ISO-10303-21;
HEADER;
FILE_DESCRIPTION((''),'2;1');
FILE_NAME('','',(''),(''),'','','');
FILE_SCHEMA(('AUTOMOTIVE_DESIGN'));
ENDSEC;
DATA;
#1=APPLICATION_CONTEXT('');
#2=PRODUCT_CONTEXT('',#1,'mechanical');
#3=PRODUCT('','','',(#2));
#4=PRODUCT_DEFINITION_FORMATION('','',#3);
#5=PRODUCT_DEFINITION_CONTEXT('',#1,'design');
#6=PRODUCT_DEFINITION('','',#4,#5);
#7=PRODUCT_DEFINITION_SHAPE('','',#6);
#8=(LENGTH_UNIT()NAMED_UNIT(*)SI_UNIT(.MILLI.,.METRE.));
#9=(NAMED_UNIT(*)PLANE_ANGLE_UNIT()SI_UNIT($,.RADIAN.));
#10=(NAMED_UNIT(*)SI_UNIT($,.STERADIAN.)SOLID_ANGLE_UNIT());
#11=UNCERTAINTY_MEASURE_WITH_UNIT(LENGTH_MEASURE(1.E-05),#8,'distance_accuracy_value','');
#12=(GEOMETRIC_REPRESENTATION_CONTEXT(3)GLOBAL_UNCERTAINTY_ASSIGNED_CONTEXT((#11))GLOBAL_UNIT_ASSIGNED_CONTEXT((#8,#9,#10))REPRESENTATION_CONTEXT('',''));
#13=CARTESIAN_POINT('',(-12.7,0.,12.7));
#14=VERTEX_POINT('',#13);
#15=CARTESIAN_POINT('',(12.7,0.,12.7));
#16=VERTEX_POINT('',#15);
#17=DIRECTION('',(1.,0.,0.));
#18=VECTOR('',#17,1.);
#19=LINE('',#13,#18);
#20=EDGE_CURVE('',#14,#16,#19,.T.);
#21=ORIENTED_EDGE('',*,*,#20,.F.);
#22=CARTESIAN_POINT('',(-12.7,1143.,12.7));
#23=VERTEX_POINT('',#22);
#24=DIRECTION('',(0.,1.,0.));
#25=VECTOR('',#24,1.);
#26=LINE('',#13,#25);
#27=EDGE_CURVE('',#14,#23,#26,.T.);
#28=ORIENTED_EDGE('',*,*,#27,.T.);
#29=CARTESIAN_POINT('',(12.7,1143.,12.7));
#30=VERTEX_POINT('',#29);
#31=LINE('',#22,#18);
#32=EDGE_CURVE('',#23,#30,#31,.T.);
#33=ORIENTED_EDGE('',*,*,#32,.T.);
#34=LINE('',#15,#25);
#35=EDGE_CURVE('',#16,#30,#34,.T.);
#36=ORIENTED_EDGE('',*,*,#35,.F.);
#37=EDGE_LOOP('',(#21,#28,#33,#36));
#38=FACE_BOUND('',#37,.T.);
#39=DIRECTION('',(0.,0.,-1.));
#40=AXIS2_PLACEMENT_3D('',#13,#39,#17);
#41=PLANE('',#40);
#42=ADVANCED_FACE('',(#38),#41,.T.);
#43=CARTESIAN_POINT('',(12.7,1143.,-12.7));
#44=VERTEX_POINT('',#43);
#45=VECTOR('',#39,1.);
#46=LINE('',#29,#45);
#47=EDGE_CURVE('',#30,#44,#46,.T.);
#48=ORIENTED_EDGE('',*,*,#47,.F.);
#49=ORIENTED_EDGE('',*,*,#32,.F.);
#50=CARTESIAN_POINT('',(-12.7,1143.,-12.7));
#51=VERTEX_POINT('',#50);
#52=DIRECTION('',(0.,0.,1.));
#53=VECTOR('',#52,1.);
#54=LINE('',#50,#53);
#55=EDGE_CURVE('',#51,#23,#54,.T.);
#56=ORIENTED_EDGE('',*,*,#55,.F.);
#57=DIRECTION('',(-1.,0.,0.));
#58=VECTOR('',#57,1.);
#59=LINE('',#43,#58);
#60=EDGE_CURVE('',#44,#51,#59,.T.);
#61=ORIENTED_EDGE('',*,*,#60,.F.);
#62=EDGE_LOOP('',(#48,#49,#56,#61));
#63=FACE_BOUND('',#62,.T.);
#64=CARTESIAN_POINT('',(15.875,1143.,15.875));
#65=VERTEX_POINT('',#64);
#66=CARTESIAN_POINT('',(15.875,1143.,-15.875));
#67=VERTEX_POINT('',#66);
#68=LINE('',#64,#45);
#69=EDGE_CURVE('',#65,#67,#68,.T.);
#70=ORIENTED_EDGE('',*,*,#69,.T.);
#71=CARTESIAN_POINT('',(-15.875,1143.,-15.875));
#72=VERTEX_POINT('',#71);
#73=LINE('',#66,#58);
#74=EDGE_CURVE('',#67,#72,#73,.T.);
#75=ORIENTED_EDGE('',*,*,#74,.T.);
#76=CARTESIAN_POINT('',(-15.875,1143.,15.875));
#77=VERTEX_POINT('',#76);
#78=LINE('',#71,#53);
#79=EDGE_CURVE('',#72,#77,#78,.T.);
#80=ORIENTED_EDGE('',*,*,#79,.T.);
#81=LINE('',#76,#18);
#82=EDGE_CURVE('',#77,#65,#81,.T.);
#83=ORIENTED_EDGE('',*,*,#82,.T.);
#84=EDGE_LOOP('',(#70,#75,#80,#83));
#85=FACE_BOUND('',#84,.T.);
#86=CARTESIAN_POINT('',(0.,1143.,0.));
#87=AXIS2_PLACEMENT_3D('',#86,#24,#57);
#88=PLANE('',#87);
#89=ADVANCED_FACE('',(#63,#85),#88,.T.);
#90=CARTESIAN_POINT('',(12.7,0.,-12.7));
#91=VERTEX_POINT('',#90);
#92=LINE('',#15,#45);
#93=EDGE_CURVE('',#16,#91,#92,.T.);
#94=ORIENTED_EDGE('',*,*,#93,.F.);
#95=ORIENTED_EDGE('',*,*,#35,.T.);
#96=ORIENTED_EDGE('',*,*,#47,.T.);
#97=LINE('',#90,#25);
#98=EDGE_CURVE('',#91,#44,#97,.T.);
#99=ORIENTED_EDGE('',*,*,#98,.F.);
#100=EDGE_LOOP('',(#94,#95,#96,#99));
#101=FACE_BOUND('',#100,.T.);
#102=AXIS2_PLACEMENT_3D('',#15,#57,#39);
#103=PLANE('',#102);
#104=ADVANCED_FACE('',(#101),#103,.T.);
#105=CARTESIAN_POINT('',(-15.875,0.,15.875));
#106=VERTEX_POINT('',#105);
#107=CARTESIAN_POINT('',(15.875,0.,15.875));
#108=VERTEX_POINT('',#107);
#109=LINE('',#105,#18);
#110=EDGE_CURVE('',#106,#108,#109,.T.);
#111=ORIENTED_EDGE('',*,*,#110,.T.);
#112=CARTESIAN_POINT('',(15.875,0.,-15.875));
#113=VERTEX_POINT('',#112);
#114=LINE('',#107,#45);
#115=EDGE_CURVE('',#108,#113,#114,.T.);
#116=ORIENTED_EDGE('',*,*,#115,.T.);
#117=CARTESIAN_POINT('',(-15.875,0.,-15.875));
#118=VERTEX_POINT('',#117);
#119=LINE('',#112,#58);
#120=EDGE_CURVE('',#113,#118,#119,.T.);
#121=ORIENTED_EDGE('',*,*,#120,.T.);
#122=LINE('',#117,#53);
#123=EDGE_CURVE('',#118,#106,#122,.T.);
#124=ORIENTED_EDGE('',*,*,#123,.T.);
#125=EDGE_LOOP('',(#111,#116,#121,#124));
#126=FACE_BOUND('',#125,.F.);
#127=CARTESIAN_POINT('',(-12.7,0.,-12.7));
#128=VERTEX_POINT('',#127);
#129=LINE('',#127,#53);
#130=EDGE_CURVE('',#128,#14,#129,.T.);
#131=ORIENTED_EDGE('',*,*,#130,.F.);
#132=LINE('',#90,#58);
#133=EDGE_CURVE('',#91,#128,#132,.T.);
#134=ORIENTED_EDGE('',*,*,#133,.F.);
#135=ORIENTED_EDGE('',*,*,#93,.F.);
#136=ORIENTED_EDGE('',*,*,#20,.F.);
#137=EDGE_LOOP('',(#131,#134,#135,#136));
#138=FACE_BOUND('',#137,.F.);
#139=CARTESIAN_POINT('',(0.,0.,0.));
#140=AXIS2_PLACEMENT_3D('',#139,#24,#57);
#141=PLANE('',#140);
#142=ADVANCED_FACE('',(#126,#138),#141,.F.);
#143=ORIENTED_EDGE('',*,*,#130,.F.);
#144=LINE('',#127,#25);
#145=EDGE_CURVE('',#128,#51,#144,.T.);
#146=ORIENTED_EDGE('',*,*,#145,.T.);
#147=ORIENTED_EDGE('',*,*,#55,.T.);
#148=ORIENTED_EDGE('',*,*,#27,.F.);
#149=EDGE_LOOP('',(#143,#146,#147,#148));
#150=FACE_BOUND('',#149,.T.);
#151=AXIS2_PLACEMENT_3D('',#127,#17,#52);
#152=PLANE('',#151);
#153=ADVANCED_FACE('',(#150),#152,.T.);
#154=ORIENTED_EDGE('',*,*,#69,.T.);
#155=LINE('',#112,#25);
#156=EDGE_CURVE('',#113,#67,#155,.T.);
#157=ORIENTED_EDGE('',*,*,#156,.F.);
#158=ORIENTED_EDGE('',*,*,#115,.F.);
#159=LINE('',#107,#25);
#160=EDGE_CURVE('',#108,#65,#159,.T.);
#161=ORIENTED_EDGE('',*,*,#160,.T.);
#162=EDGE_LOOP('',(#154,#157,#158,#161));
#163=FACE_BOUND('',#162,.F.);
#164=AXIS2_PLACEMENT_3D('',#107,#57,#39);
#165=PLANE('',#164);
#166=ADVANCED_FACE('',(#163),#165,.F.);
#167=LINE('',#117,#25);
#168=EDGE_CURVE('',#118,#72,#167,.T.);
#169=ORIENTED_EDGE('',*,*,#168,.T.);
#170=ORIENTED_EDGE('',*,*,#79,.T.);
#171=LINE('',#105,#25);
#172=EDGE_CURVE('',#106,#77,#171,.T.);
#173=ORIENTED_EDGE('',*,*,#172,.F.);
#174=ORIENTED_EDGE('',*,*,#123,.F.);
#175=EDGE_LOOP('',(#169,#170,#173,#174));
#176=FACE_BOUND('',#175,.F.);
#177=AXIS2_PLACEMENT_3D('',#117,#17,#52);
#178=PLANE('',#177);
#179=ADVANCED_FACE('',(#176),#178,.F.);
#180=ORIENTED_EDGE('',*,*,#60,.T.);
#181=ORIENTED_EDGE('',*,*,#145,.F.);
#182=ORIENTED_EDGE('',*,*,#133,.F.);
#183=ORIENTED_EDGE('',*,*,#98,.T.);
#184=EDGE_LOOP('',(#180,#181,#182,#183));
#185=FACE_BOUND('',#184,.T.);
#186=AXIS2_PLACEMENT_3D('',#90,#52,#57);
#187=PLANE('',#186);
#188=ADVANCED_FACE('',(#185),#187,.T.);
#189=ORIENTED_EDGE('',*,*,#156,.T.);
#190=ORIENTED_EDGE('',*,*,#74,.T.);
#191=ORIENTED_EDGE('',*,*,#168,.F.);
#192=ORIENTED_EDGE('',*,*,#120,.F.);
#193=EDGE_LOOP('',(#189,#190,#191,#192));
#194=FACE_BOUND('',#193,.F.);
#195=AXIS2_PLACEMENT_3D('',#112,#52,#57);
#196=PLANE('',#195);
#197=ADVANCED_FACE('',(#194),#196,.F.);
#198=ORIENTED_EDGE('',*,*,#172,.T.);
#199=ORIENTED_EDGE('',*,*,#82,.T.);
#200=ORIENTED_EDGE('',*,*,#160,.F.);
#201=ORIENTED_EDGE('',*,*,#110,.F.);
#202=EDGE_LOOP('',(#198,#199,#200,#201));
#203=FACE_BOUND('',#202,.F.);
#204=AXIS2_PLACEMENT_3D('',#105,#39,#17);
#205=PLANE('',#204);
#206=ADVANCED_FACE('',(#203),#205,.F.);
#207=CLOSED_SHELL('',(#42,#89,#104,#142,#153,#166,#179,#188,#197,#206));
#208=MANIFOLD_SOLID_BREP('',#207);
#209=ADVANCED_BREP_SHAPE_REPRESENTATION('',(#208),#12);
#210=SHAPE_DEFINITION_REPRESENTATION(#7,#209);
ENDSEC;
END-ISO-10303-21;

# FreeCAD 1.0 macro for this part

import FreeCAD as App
import Part
import Sketcher
Q = App.Units.Quantity

doc = App.newDocument("Part")
body = doc.addObject("PartDesign::Body", "Body")

# Sketch on XZ plane
sketch1 = body.newObject("Sketcher::SketchObject", "Sketch")
sketch1.AttachmentSupport = (doc.getObject("XZ_Plane"), [""])
sketch1.MapMode = "FlatFace"
sketch1.addGeometry(Part.LineSegment(App.Vector(-15.875, -15.875, 0), App.Vector(-15.875, 15.875, 0)), False)
sketch1.addGeometry(Part.LineSegment(App.Vector(-15.875, 15.875, 0), App.Vector(15.875, 15.875, 0)), False)
sketch1.addGeometry(Part.LineSegment(App.Vector(15.875, 15.875, 0), App.Vector(15.875, -15.875, 0)), False)
sketch1.addGeometry(Part.LineSegment(App.Vector(15.875, -15.875, 0), App.Vector(-15.875, -15.875, 0)), False)
sketch1.addGeometry(Part.LineSegment(App.Vector(12.7, 12.7, 0), App.Vector(-12.7, 12.7, 0)), False)
sketch1.addGeometry(Part.LineSegment(App.Vector(-12.7, 12.7, 0), App.Vector(-12.7, -12.7, 0)), False)
sketch1.addGeometry(Part.LineSegment(App.Vector(-12.7, -12.7, 0), App.Vector(12.7, -12.7, 0)), False)
sketch1.addGeometry(Part.LineSegment(App.Vector(12.7, -12.7, 0), App.Vector(12.7, 12.7, 0)), False)
sketch1.addConstraint(Sketcher.Constraint("Coincident", 0, 2, 1, 1))
sketch1.addConstraint(Sketcher.Constraint("Coincident", 1, 2, 2, 1))
sketch1.addConstraint(Sketcher.Constraint("Coincident", 2, 2, 3, 1))
sketch1.addConstraint(Sketcher.Constraint("Coincident", 3, 2, 0, 1))
sketch1.addConstraint(Sketcher.Constraint("Coincident", 4, 2, 5, 1))
sketch1.addConstraint(Sketcher.Constraint("Coincident", 5, 2, 6, 1))
sketch1.addConstraint(Sketcher.Constraint("Coincident", 6, 2, 7, 1))
sketch1.addConstraint(Sketcher.Constraint("Coincident", 7, 2, 4, 1))
sketch1.addConstraint(Sketcher.Constraint("Vertical", 0))
sketch1.addConstraint(Sketcher.Constraint("Horizontal", 1))
sketch1.addConstraint(Sketcher.Constraint("Vertical", 2))
sketch1.addConstraint(Sketcher.Constraint("Horizontal", 3))
sketch1.addConstraint(Sketcher.Constraint("Horizontal", 4))
sketch1.addConstraint(Sketcher.Constraint("Vertical", 5))
sketch1.addConstraint(Sketcher.Constraint("Horizontal", 6))
sketch1.addConstraint(Sketcher.Constraint("Vertical", 7))
sketch1.addConstraint(Sketcher.Constraint("Symmetric", 0, 2, 2, 2, -1, 1))
sketch1.addConstraint(Sketcher.Constraint("Symmetric", 4, 2, 6, 2, -1, 1))
sketch1.addConstraint(Sketcher.Constraint("Equal", 3, 0))
sketch1.addConstraint(Sketcher.Constraint("Equal", 6, 5))
sketch1.addConstraint(Sketcher.Constraint("DistanceX", 1, 1, 1, 2, Q("1.25 in")))
sketch1.addConstraint(Sketcher.Constraint("DistanceX", 4, 2, 4, 1, Q("1 in")))
pad1 = body.newObject("PartDesign::Pad", "Pad")
pad1.Profile = sketch1
pad1.Length = Q("45 in")
pad1.Reversed = True

doc.recompute()
